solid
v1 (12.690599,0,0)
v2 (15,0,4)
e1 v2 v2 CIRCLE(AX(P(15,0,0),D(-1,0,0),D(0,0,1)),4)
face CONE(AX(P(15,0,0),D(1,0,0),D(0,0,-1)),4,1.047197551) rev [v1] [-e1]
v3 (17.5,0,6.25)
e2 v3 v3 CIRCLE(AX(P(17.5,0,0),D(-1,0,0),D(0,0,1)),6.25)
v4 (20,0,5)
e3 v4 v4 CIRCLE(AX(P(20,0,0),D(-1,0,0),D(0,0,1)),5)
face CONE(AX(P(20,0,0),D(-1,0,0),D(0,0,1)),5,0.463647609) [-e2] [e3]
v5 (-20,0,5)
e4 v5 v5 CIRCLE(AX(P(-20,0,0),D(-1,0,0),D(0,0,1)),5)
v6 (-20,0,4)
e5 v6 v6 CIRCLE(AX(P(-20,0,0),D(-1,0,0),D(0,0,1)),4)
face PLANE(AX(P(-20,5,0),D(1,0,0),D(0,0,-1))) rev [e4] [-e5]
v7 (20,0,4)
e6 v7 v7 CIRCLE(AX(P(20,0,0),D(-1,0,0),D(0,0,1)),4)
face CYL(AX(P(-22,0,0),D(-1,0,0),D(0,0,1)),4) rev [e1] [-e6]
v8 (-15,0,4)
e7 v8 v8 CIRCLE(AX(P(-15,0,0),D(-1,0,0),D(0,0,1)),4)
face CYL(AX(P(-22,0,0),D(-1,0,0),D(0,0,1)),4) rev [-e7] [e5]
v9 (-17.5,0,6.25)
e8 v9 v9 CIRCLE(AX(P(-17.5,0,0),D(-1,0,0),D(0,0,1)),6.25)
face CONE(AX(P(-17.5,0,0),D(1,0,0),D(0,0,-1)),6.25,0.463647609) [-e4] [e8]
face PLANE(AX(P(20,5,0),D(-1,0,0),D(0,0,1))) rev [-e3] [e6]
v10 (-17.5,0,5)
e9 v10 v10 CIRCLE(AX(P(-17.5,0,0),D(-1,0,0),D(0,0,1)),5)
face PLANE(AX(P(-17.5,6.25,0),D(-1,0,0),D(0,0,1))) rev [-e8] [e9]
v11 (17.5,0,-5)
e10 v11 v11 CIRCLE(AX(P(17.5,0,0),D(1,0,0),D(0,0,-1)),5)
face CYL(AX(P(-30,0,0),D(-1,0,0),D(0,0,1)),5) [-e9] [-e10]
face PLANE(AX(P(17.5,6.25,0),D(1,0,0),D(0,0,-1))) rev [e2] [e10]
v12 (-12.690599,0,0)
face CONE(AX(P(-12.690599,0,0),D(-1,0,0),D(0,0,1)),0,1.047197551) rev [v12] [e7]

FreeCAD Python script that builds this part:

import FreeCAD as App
import Part
import Sketcher

V = App.Vector
Q = App.Units.Quantity

doc = App.newDocument("Part")
params = doc.addObject("Spreadsheet::Sheet", "Params")
for row, (alias, value) in enumerate([
    ("sketch1_width", "40 mm"),
    ("sketch1_height", "5 mm"),
    ("revolution_angle", "360 deg"),
    ("sketch2_height", "6 mm"),
    ("sketch2_width", "3.5 mm"),
    ("groove_angle", "360 deg"),
    ("sketch3_height", "5 mm"),
    ("sketch3_width", "2.5 mm"),
    ("sketch3_height2", "6.25 mm"),
    ("revolution2_angle", "360 deg"),
    ("sketch4_width", "5 mm"),
    ("sketch4_height", "4 mm"),
    ("groove2_angle", "360 deg"),
], start=1):
    params.set(f"A{row}", alias)
    params.set(f"B{row}", "=" + value)
    params.setAlias(f"B{row}", alias)

body = doc.addObject("PartDesign::Body", "Body")

# Sketch on XY plane
sketch1 = body.newObject("Sketcher::SketchObject", "Sketch")
sketch1.AttachmentSupport = (doc.getObject("XY_Plane"), [""])
sketch1.MapMode = "FlatFace"
sketch1.addGeometry(Part.LineSegment(V(-20, 5, 0), V(-20, 0, 0)), False)
sketch1.addGeometry(Part.LineSegment(V(-20, 0, 0), V(20, 0, 0)), False)
sketch1.addGeometry(Part.LineSegment(V(20, 0, 0), V(20, 5, 0)), False)
sketch1.addGeometry(Part.LineSegment(V(20, 5, 0), V(-20, 5, 0)), False)
sketch1.addConstraint(Sketcher.Constraint("Coincident", 0, 2, 1, 1))
sketch1.addConstraint(Sketcher.Constraint("Coincident", 1, 2, 2, 1))
sketch1.addConstraint(Sketcher.Constraint("Coincident", 2, 2, 3, 1))
sketch1.addConstraint(Sketcher.Constraint("Coincident", 3, 2, 0, 1))
sketch1.addConstraint(Sketcher.Constraint("Vertical", 0))
sketch1.addConstraint(Sketcher.Constraint("Horizontal", 1))
sketch1.addConstraint(Sketcher.Constraint("Vertical", 2))
sketch1.addConstraint(Sketcher.Constraint("Horizontal", 3))
sketch1.addConstraint(Sketcher.Constraint("Symmetric", 0, 2, 1, 2, -1, 1))
sketch1.addConstraint(Sketcher.Constraint("DistanceX", 1, 1, 1, 2, Q("40 mm")))
sketch1.addConstraint(Sketcher.Constraint("DistanceY", 0, 2, 0, 1, Q("5 mm")))
sketch1.setExpression("Constraints[9]", "Params.sketch1_width")
sketch1.setExpression("Constraints[10]", "Params.sketch1_height")
revolution = body.newObject("PartDesign::Revolution", "Revolution")
revolution.Profile = sketch1
revolution.ReferenceAxis = (sketch1, ["H_Axis"])
revolution.setExpression("Angle", "Params.revolution_angle")

# Sketch on XY plane
sketch2 = body.newObject("Sketcher::SketchObject", "Sketch001")
sketch2.AttachmentSupport = (doc.getObject("XY_Plane"), [""])
sketch2.MapMode = "FlatFace"
sketch2.addGeometry(Part.LineSegment(V(-21, 6, 0), V(-21, 0, 0)), False)
sketch2.addGeometry(Part.LineSegment(V(-21, 0, 0), V(-17.5, 0, 0)), False)
sketch2.addGeometry(Part.LineSegment(V(-17.5, 0, 0), V(-17.5, 6, 0)), False)
sketch2.addGeometry(Part.LineSegment(V(-17.5, 6, 0), V(-21, 6, 0)), False)
sketch2.addGeometry(Part.LineSegment(V(17.5, 6, 0), V(17.5, 0, 0)), False)
sketch2.addGeometry(Part.LineSegment(V(17.5, 0, 0), V(21, 0, 0)), False)
sketch2.addGeometry(Part.LineSegment(V(21, 0, 0), V(21, 6, 0)), False)
sketch2.addGeometry(Part.LineSegment(V(21, 6, 0), V(17.5, 6, 0)), False)
sketch2.addConstraint(Sketcher.Constraint("Coincident", 0, 2, 1, 1))
sketch2.addConstraint(Sketcher.Constraint("Coincident", 1, 2, 2, 1))
sketch2.addConstraint(Sketcher.Constraint("Coincident", 2, 2, 3, 1))
sketch2.addConstraint(Sketcher.Constraint("Coincident", 3, 2, 0, 1))
sketch2.addConstraint(Sketcher.Constraint("Coincident", 4, 2, 5, 1))
sketch2.addConstraint(Sketcher.Constraint("Coincident", 5, 2, 6, 1))
sketch2.addConstraint(Sketcher.Constraint("Coincident", 6, 2, 7, 1))
sketch2.addConstraint(Sketcher.Constraint("Coincident", 7, 2, 4, 1))
sketch2.addConstraint(Sketcher.Constraint("Vertical", 0))
sketch2.addConstraint(Sketcher.Constraint("Horizontal", 1))
sketch2.addConstraint(Sketcher.Constraint("Vertical", 2))
sketch2.addConstraint(Sketcher.Constraint("Horizontal", 3))
sketch2.addConstraint(Sketcher.Constraint("Vertical", 4))
sketch2.addConstraint(Sketcher.Constraint("Horizontal", 5))
sketch2.addConstraint(Sketcher.Constraint("Vertical", 6))
sketch2.addConstraint(Sketcher.Constraint("Horizontal", 7))
sketch2.addConstraint(Sketcher.Constraint("Symmetric", 1, 2, 4, 2, -1, 1))
sketch2.addConstraint(Sketcher.Constraint("Symmetric", 0, 2, 5, 2, -2))
sketch2.addConstraint(Sketcher.Constraint("Horizontal", 3, 2, 6, 2))
sketch2.addConstraint(Sketcher.Constraint("DistanceY", 0, 2, 0, 1, Q("6 mm")))
sketch2.addConstraint(Sketcher.Constraint("DistanceX", 1, 1, 1, 2, Q("3.5 mm")))
sketch2.addConstraint(Sketcher.Constraint("DistanceX", 0, 2, -1, 1, Q("21 mm")))
sketch2.setExpression("Constraints[19]", "Params.sketch2_height")
sketch2.setExpression("Constraints[20]", "Params.sketch2_width")
groove = body.newObject("PartDesign::Groove", "Groove")
groove.Profile = sketch2
groove.ReferenceAxis = (sketch2, ["H_Axis"])
groove.setExpression("Angle", "Params.groove_angle")

# Sketch on XY plane
sketch3 = body.newObject("Sketcher::SketchObject", "Sketch002")
sketch3.AttachmentSupport = (doc.getObject("XY_Plane"), [""])
sketch3.MapMode = "FlatFace"
sketch3.addGeometry(Part.LineSegment(V(-20, 5, 0), V(-20, 0, 0)), False)
sketch3.addGeometry(Part.LineSegment(V(-20, 0, 0), V(-17.5, 0, 0)), False)
sketch3.addGeometry(Part.LineSegment(V(-17.5, 0, 0), V(-17.5, 6.2, 0)), False)
sketch3.addGeometry(Part.LineSegment(V(-17.5, 6.2, 0), V(-20, 5, 0)), False)
sketch3.addGeometry(Part.LineSegment(V(20, 5, 0), V(17.5, 6.2, 0)), False)
sketch3.addGeometry(Part.LineSegment(V(17.5, 6.2, 0), V(17.5, 0, 0)), False)
sketch3.addGeometry(Part.LineSegment(V(17.5, 0, 0), V(20, 0, 0)), False)
sketch3.addGeometry(Part.LineSegment(V(20, 0, 0), V(20, 5, 0)), False)
sketch3.addConstraint(Sketcher.Constraint("Coincident", 0, 2, 1, 1))
sketch3.addConstraint(Sketcher.Constraint("Coincident", 1, 2, 2, 1))
sketch3.addConstraint(Sketcher.Constraint("Coincident", 2, 2, 3, 1))
sketch3.addConstraint(Sketcher.Constraint("Coincident", 3, 2, 0, 1))
sketch3.addConstraint(Sketcher.Constraint("Coincident", 4, 2, 5, 1))
sketch3.addConstraint(Sketcher.Constraint("Coincident", 5, 2, 6, 1))
sketch3.addConstraint(Sketcher.Constraint("Coincident", 6, 2, 7, 1))
sketch3.addConstraint(Sketcher.Constraint("Coincident", 7, 2, 4, 1))
sketch3.addConstraint(Sketcher.Constraint("Vertical", 0))
sketch3.addConstraint(Sketcher.Constraint("Horizontal", 1))
sketch3.addConstraint(Sketcher.Constraint("Vertical", 2))
sketch3.addConstraint(Sketcher.Constraint("Vertical", 5))
sketch3.addConstraint(Sketcher.Constraint("Horizontal", 6))
sketch3.addConstraint(Sketcher.Constraint("Vertical", 7))
sketch3.addConstraint(Sketcher.Constraint("Symmetric", 1, 2, 5, 2, -1, 1))
sketch3.addConstraint(Sketcher.Constraint("Symmetric", 0, 2, 6, 2, -2))
sketch3.addConstraint(Sketcher.Constraint("Horizontal", 2, 2, 4, 2))
sketch3.addConstraint(Sketcher.Constraint("Horizontal", 3, 2, 7, 2))
sketch3.addConstraint(Sketcher.Constraint("DistanceY", 0, 2, 0, 1, Q("5 mm")))
sketch3.addConstraint(Sketcher.Constraint("DistanceX", 1, 1, 1, 2, Q("2.5 mm")))
sketch3.addConstraint(Sketcher.Constraint("DistanceX", 0, 2, -1, 1, Q("20 mm")))
sketch3.addConstraint(Sketcher.Constraint("DistanceY", 2, 1, 2, 2, Q("6.25 mm")))
sketch3.setExpression("Constraints[18]", "Params.sketch3_height")
sketch3.setExpression("Constraints[19]", "Params.sketch3_width")
sketch3.setExpression("Constraints[21]", "Params.sketch3_height2")
revolution2 = body.newObject("PartDesign::Revolution", "Revolution001")
revolution2.Profile = sketch3
revolution2.ReferenceAxis = (sketch3, ["H_Axis"])
revolution2.setExpression("Angle", "Params.revolution2_angle")

# Sketch on XY plane
sketch4 = body.newObject("Sketcher::SketchObject", "Sketch003")
sketch4.AttachmentSupport = (doc.getObject("XY_Plane"), [""])
sketch4.MapMode = "FlatFace"
sketch4.addGeometry(Part.LineSegment(V(-12.7, 0, 0), V(-15, 4, 0)), False)
sketch4.addGeometry(Part.LineSegment(V(-15, 4, 0), V(-20, 4, 0)), False)
sketch4.addGeometry(Part.LineSegment(V(-20, 4, 0), V(-20, 0, 0)), False)
sketch4.addGeometry(Part.LineSegment(V(-20, 0, 0), V(-12.7, 0, 0)), False)
sketch4.addGeometry(Part.LineSegment(V(15, 4, 0), V(12.7, 0, 0)), False)
sketch4.addGeometry(Part.LineSegment(V(12.7, 0, 0), V(20, 0, 0)), False)
sketch4.addGeometry(Part.LineSegment(V(20, 0, 0), V(20, 4, 0)), False)
sketch4.addGeometry(Part.LineSegment(V(20, 4, 0), V(15, 4, 0)), False)
sketch4.addConstraint(Sketcher.Constraint("Coincident", 0, 2, 1, 1))
sketch4.addConstraint(Sketcher.Constraint("Coincident", 1, 2, 2, 1))
sketch4.addConstraint(Sketcher.Constraint("Coincident", 2, 2, 3, 1))
sketch4.addConstraint(Sketcher.Constraint("Coincident", 3, 2, 0, 1))
sketch4.addConstraint(Sketcher.Constraint("Coincident", 4, 2, 5, 1))
sketch4.addConstraint(Sketcher.Constraint("Coincident", 5, 2, 6, 1))
sketch4.addConstraint(Sketcher.Constraint("Coincident", 6, 2, 7, 1))
sketch4.addConstraint(Sketcher.Constraint("Coincident", 7, 2, 4, 1))
sketch4.addConstraint(Sketcher.Constraint("Horizontal", 1))
sketch4.addConstraint(Sketcher.Constraint("Vertical", 2))
sketch4.addConstraint(Sketcher.Constraint("Horizontal", 3))
sketch4.addConstraint(Sketcher.Constraint("Horizontal", 5))
sketch4.addConstraint(Sketcher.Constraint("Vertical", 6))
sketch4.addConstraint(Sketcher.Constraint("Horizontal", 7))
sketch4.addConstraint(Sketcher.Constraint("Symmetric", 3, 2, 4, 2, -1, 1))
sketch4.addConstraint(Sketcher.Constraint("Symmetric", 2, 2, 5, 2, -2))
sketch4.addConstraint(Sketcher.Constraint("Symmetric", 0, 2, 7, 2, -2))
sketch4.addConstraint(Sketcher.Constraint("DistanceX", 1, 2, 1, 1, Q("5 mm")))
sketch4.addConstraint(Sketcher.Constraint("DistanceY", 2, 2, 2, 1, Q("4 mm")))
sketch4.addConstraint(Sketcher.Constraint("Angle", 0, Q("120 deg")))
sketch4.addConstraint(Sketcher.Constraint("DistanceX", 0, 2, -1, 1, Q("15 mm")))
sketch4.setExpression("Constraints[17]", "Params.sketch4_width")
sketch4.setExpression("Constraints[18]", "Params.sketch4_height")
groove2 = body.newObject("PartDesign::Groove", "Groove001")
groove2.Profile = sketch4
groove2.ReferenceAxis = (sketch4, ["H_Axis"])
groove2.setExpression("Angle", "Params.groove2_angle")

doc.recompute()
